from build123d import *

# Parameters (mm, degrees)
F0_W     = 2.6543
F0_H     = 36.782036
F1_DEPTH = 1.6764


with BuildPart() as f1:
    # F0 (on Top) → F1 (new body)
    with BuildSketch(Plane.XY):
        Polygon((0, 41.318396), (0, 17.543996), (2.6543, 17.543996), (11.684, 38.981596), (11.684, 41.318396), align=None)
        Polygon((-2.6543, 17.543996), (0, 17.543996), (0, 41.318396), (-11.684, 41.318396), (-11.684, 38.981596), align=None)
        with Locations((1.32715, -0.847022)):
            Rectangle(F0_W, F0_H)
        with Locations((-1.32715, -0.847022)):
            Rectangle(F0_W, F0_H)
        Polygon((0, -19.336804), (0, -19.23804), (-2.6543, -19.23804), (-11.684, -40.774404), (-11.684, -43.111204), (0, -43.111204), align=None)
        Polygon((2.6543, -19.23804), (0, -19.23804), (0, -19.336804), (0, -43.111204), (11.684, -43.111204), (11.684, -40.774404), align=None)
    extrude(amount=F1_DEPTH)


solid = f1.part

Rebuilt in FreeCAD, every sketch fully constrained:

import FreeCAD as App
import Part
import Sketcher
Q = App.Units.Quantity

doc = App.newDocument("Part")
body = doc.addObject("PartDesign::Body", "Body")

sketch1 = body.newObject("Sketcher::SketchObject", "Sketch")
sketch1.AttachmentSupport = (doc.getObject("XY_Plane"), [""])
sketch1.MapMode = "FlatFace"
sketch1.addGeometry(Part.LineSegment(App.Vector(2.6543, 17.543996, 0), App.Vector(11.684, 38.981596, 0)), False)
sketch1.addGeometry(Part.LineSegment(App.Vector(11.684, 38.981596, 0), App.Vector(11.684, 41.318396, 0)), False)
sketch1.addGeometry(Part.LineSegment(App.Vector(11.684, 41.318396, 0), App.Vector(-11.684, 41.318396, 0)), False)
sketch1.addGeometry(Part.LineSegment(App.Vector(-11.684, 41.318396, 0), App.Vector(-11.684, 38.981596, 0)), False)
sketch1.addGeometry(Part.LineSegment(App.Vector(-11.684, 38.981596, 0), App.Vector(-2.6543, 17.543996, 0)), False)
sketch1.addGeometry(Part.LineSegment(App.Vector(-2.6543, 17.543996, 0), App.Vector(-2.6543, -19.23804, 0)), False)
sketch1.addGeometry(Part.LineSegment(App.Vector(-2.6543, -19.23804, 0), App.Vector(-11.684, -40.774404, 0)), False)
sketch1.addGeometry(Part.LineSegment(App.Vector(-11.684, -40.774404, 0), App.Vector(-11.684, -43.111204, 0)), False)
sketch1.addGeometry(Part.LineSegment(App.Vector(-11.684, -43.111204, 0), App.Vector(11.684, -43.111204, 0)), False)
sketch1.addGeometry(Part.LineSegment(App.Vector(11.684, -43.111204, 0), App.Vector(11.684, -40.774404, 0)), False)
sketch1.addGeometry(Part.LineSegment(App.Vector(11.684, -40.774404, 0), App.Vector(2.6543, -19.23804, 0)), False)
sketch1.addGeometry(Part.LineSegment(App.Vector(2.6543, -19.23804, 0), App.Vector(2.6543, 17.543996, 0)), False)
sketch1.addConstraint(Sketcher.Constraint("Coincident", 0, 2, 1, 1))
sketch1.addConstraint(Sketcher.Constraint("Coincident", 1, 2, 2, 1))
sketch1.addConstraint(Sketcher.Constraint("Coincident", 2, 2, 3, 1))
sketch1.addConstraint(Sketcher.Constraint("Coincident", 3, 2, 4, 1))
sketch1.addConstraint(Sketcher.Constraint("Coincident", 4, 2, 5, 1))
sketch1.addConstraint(Sketcher.Constraint("Coincident", 5, 2, 6, 1))
sketch1.addConstraint(Sketcher.Constraint("Coincident", 6, 2, 7, 1))
sketch1.addConstraint(Sketcher.Constraint("Coincident", 7, 2, 8, 1))
sketch1.addConstraint(Sketcher.Constraint("Coincident", 8, 2, 9, 1))
sketch1.addConstraint(Sketcher.Constraint("Coincident", 9, 2, 10, 1))
sketch1.addConstraint(Sketcher.Constraint("Coincident", 10, 2, 11, 1))
sketch1.addConstraint(Sketcher.Constraint("Coincident", 11, 2, 0, 1))
sketch1.addConstraint(Sketcher.Constraint("Vertical", 1))
sketch1.addConstraint(Sketcher.Constraint("Horizontal", 2))
sketch1.addConstraint(Sketcher.Constraint("Vertical", 3))
sketch1.addConstraint(Sketcher.Constraint("Vertical", 5))
sketch1.addConstraint(Sketcher.Constraint("Vertical", 7))
sketch1.addConstraint(Sketcher.Constraint("Horizontal", 8))
sketch1.addConstraint(Sketcher.Constraint("Vertical", 9))
sketch1.addConstraint(Sketcher.Constraint("Vertical", 11))
sketch1.addConstraint(Sketcher.Constraint("Symmetric", 0, 2, 3, 2, -2))
sketch1.addConstraint(Sketcher.Constraint("Symmetric", 6, 2, 9, 2, -2))
sketch1.addConstraint(Sketcher.Constraint("Symmetric", 5, 2, 10, 2, -2))
sketch1.addConstraint(Sketcher.Constraint("Horizontal", 4, 2, 11, 2))
sketch1.addConstraint(Sketcher.Constraint("Vertical", 3, 2, 6, 2))
sketch1.addConstraint(Sketcher.Constraint("Equal", 3, 7))
sketch1.addConstraint(Sketcher.Constraint("DistanceX", 2, 2, 2, 1, Q("0.92 in")))
sketch1.addConstraint(Sketcher.Constraint("DistanceY", 1, 1, 1, 2, Q("0.092 in")))
sketch1.addConstraint(Sketcher.Constraint("DistanceY", 6, 2, 3, 2, Q("3.14 in")))
sketch1.addConstraint(Sketcher.Constraint("DistanceY", 4, 2, 3, 2, Q("0.844 in")))
sketch1.addConstraint(Sketcher.Constraint("DistanceX", 5, 2, 10, 2, Q("0.209 in")))
sketch1.addConstraint(Sketcher.Constraint("Distance", 6, 23.35274))
sketch1.addConstraint(Sketcher.Constraint("DistanceY", 5, 2, -1, 1, 19.23804))
pad1 = body.newObject("PartDesign::Pad", "Pad")
pad1.Profile = sketch1
pad1.Length = Q("0.066 in")

doc.recompute()
